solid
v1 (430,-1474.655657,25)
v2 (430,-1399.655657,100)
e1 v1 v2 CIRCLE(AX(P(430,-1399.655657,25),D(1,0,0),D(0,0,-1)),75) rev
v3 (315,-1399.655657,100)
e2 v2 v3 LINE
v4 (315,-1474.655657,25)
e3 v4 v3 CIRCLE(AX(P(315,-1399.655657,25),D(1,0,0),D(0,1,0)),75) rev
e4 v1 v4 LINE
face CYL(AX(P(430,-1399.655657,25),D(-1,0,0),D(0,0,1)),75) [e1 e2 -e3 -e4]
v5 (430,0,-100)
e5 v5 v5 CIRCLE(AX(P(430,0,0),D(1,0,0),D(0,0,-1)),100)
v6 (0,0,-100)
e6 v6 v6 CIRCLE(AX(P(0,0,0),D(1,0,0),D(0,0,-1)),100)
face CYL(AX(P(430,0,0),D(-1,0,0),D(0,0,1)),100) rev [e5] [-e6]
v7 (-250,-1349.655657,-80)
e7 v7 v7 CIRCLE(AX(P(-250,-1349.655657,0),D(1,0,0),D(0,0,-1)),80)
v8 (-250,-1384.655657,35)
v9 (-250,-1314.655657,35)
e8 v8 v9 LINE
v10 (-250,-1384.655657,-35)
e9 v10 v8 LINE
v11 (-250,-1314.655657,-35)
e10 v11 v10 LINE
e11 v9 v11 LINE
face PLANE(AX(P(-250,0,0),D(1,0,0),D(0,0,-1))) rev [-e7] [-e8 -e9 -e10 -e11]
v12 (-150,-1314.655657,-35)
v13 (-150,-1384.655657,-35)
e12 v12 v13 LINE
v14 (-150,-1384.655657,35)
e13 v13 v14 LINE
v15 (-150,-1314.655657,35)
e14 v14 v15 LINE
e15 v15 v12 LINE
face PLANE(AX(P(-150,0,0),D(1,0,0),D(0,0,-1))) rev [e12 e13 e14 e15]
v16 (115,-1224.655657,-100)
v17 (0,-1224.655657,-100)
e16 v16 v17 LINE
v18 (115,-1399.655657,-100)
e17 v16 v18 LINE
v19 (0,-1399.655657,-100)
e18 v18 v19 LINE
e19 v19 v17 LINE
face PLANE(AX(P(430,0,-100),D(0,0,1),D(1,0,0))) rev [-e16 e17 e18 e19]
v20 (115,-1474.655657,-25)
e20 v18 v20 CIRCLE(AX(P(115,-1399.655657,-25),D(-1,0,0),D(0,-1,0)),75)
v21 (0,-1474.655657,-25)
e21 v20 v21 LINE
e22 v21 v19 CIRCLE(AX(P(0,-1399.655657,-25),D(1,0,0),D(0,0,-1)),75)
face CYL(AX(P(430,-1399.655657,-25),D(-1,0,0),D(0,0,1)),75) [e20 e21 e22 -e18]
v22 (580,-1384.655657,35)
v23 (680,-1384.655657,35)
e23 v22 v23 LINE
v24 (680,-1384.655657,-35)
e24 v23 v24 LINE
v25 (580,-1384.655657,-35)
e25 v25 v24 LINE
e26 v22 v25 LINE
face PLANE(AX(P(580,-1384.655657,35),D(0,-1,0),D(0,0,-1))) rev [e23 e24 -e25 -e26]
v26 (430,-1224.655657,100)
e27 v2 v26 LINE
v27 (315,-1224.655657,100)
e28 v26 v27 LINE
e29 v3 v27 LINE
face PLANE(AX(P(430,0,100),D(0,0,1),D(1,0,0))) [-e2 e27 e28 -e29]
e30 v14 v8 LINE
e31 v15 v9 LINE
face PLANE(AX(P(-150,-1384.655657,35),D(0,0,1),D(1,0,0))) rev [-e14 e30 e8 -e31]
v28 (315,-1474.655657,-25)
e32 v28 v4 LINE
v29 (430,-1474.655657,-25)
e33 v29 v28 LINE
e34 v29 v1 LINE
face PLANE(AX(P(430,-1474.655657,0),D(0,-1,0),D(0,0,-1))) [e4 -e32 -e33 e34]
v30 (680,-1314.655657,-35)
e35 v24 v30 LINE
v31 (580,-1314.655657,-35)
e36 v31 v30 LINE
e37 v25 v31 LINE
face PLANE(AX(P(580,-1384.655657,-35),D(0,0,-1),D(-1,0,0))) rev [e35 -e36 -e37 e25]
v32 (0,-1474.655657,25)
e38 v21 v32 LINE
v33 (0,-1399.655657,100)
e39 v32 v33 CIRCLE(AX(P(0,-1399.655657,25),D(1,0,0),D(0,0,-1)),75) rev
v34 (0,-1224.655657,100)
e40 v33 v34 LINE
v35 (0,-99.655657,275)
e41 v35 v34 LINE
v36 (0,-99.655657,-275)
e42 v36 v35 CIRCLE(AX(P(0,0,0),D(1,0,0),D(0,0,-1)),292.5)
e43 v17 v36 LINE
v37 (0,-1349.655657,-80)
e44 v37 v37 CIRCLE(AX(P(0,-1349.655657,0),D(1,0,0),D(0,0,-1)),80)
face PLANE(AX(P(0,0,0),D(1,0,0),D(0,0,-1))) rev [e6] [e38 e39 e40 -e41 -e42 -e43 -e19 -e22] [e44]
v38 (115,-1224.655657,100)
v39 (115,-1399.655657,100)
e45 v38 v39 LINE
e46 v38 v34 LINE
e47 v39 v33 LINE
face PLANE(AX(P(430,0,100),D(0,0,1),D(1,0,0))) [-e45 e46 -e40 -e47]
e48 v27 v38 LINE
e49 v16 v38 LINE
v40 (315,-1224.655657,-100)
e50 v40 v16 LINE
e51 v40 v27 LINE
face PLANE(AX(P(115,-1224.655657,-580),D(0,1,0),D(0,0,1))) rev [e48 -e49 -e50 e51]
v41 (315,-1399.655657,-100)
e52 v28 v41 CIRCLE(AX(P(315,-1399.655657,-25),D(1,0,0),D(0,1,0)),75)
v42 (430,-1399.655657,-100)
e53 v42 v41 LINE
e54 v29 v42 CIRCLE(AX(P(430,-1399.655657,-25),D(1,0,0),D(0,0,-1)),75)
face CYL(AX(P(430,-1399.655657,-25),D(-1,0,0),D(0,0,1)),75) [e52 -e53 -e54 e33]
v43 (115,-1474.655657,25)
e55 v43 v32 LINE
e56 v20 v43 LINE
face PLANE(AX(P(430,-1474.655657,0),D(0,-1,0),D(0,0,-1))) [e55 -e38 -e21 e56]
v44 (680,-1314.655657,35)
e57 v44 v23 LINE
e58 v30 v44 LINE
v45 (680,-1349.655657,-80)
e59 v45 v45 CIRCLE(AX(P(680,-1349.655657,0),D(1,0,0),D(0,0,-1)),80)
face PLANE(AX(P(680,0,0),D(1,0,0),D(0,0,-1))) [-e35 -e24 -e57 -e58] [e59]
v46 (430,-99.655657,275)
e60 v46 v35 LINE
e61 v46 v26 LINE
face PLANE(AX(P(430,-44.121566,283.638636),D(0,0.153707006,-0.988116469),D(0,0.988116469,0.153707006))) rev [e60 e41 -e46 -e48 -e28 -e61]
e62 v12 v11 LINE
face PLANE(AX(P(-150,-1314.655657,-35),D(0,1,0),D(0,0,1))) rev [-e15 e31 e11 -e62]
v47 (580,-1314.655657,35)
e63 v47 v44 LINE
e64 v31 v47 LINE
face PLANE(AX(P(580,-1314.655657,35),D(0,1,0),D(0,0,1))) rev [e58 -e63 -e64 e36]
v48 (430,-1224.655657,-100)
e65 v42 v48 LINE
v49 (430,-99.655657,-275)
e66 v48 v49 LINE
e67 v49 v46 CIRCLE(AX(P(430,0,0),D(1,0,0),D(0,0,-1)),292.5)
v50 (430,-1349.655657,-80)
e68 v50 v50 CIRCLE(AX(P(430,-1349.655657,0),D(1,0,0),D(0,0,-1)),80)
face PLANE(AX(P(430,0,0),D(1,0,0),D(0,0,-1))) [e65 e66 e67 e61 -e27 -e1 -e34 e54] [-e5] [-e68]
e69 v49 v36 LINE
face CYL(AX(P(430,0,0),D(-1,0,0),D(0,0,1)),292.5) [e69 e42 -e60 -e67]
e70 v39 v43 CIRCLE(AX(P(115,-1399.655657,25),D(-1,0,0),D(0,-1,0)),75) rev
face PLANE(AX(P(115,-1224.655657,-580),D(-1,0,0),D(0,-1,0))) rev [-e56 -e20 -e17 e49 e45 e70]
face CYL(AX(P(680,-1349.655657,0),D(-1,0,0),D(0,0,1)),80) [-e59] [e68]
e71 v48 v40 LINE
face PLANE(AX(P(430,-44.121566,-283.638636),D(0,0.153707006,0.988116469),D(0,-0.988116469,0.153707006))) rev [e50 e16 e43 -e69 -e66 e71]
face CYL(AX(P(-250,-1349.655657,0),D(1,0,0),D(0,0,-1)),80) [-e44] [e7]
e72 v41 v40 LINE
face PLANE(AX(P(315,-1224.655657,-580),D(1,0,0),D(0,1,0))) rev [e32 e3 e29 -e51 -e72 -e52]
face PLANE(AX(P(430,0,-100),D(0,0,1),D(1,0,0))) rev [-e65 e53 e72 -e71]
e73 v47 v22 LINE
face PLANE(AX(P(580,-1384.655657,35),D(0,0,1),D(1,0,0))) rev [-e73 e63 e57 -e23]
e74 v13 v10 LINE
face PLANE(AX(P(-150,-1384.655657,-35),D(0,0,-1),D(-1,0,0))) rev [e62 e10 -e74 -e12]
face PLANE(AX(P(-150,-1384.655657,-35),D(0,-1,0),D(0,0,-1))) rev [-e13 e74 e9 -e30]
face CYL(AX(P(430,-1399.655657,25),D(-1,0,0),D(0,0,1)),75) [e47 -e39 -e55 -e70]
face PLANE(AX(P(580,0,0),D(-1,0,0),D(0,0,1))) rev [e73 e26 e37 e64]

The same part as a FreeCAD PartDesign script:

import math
import FreeCAD as App
import Part
import Sketcher
Q = App.Units.Quantity

doc = App.newDocument("Part")
body = doc.addObject("PartDesign::Body", "Body")

# Sketch on YZ plane
sketch1 = body.newObject("Sketcher::SketchObject", "Sketch")
sketch1.AttachmentSupport = (doc.getObject("YZ_Plane"), [""])
sketch1.MapMode = "FlatFace"
sketch1.addGeometry([
    Part.ArcOfCircle(Part.Circle(App.Vector(0, 0, 0), App.Vector(0, 0, 1), 292), math.radians(-90), math.radians(110)),  # 0
    Part.LineSegment(App.Vector(-100, 275, 0), App.Vector(-1225, 100, 0)),  # 1
    Part.LineSegment(App.Vector(-1225, 100, 0), App.Vector(-1400, 100, 0)),  # 2
    Part.ArcOfCircle(Part.Circle(App.Vector(-1400, 25, 0), App.Vector(0, 0, 1), 75), math.radians(90), math.radians(180)),  # 3
    Part.LineSegment(App.Vector(-1475, 25, 0), App.Vector(-1475, -25, 0)),  # 4
    Part.ArcOfCircle(Part.Circle(App.Vector(-1400, -25, 0), App.Vector(0, 0, 1), 75), math.radians(180), math.radians(270)),  # 5
    Part.LineSegment(App.Vector(-1400, -100, 0), App.Vector(-1225, -100, 0)),  # 6
    Part.LineSegment(App.Vector(-1225, -100, 0), App.Vector(-100, -275, 0)),  # 7
    Part.ArcOfCircle(Part.Circle(App.Vector(0, 0, 0), App.Vector(0, 0, 1), 293), math.radians(-109.92), math.radians(-90)),  # 8
    Part.ArcOfCircle(Part.Circle(App.Vector(0, 0, 0), App.Vector(0, 0, 1), 100), math.radians(175), math.radians(270)),  # 9
    Part.ArcOfCircle(Part.Circle(App.Vector(0, 0, 0), App.Vector(0, 0, 1), 100), math.radians(-90), math.radians(175)),  # 10
    Part.Circle(App.Vector(-1350, 0, 0), App.Vector(0, 0, 1), 80),  # 11
], False)
sketch1.addConstraint([
    Sketcher.Constraint("Coincident", 0, 2, 1, 1),
    Sketcher.Constraint("Coincident", 1, 2, 2, 1),
    Sketcher.Constraint("Tangent", 2, 2, 3, 1),
    Sketcher.Constraint("Tangent", 3, 2, 4, 1),
    Sketcher.Constraint("Tangent", 4, 2, 5, 1),
    Sketcher.Constraint("Tangent", 5, 2, 6, 1),
    Sketcher.Constraint("Coincident", 6, 2, 7, 1),
    Sketcher.Constraint("Coincident", 7, 2, 8, 1),
    Sketcher.Constraint("Tangent", 8, 2, 0, 1),
    Sketcher.Constraint("Tangent", 9, 1, 10, 2),
    Sketcher.Constraint("Coincident", 10, 1, 9, 2),
    Sketcher.Constraint("Horizontal", 2),
    Sketcher.Constraint("Vertical", 4),
    Sketcher.Constraint("Horizontal", 6),
    Sketcher.Constraint("Coincident", 0, 3, -1, 1),
    Sketcher.Constraint("Coincident", 9, 3, -1, 1),
    Sketcher.Constraint("Equal", 3, 5),
    Sketcher.Constraint("Equal", 0, 8),
    Sketcher.Constraint("Symmetric", 1, 2, 6, 2, -1),
    Sketcher.Constraint("PointOnObject", 11, 3, -1),
    Sketcher.Constraint("PointOnObject", 8, 2, -2),
    Sketcher.Constraint("PointOnObject", 10, 1, -2),
    Sketcher.Constraint("Horizontal", 6, 2, 10, 1),
    Sketcher.Constraint("Vertical", 0, 2, 7, 2),
    Sketcher.Constraint("Vertical", 7, 2, 9, 1),
    Sketcher.Constraint("Diameter", 11, Q("160 mm")),
    Sketcher.Constraint("Radius", 3, Q("75 mm")),
    Sketcher.Constraint("Radius", 9, Q("100 mm")),
    Sketcher.Constraint("Radius", 0, Q("292.5 mm")),
    Sketcher.Constraint("DistanceX", 2, 2, 2, 1, Q("175 mm")),
    Sketcher.Constraint("DistanceY", -1, 1, 0, 2, Q("275 mm")),
    Sketcher.Constraint("DistanceX", 3, 3, 11, 3, Q("50 mm")),
    Sketcher.Constraint("Distance", 1, Q("1138.529754 mm")),
])
pad1 = body.newObject("PartDesign::Pad", "Pad")
pad1.Profile = sketch1
pad1.Length = 430
body2 = doc.addObject("PartDesign::Body", "Body001")

# Sketch on YZ plane
sketch2 = body2.newObject("Sketcher::SketchObject", "Sketch001")
sketch2.AttachmentSupport = (doc.getObject("YZ_Plane001"), [""])
sketch2.MapMode = "FlatFace"
sketch2.addGeometry(Part.Circle(App.Vector(-1350, 0, 0), App.Vector(0, 0, 1), 80), False)
sketch2.addConstraint([
    Sketcher.Constraint("PointOnObject", 0, 3, -1),
    Sketcher.Constraint("Diameter", 0, Q("160 mm")),
    Sketcher.Constraint("DistanceX", 0, 3, -1, 1, Q("1349.655657 mm")),
])
pad2 = body2.newObject("PartDesign::Pad", "Pad001")
pad2.Profile = sketch2
pad2.Length = 250
pad2.Reversed = True
body.AllowCompound = True
doc.recompute()

boolean = body.newObject("PartDesign::Boolean", "Boolean")
boolean.Type = "Fuse"
boolean.addObjects([body2])

# Sketch on YZ plane
sketch3 = body.newObject("Sketcher::SketchObject", "Sketch002")
sketch3.AttachmentSupport = (doc.getObject("YZ_Plane"), [""])
sketch3.MapMode = "FlatFace"
sketch3.addGeometry(Part.Circle(App.Vector(-1350, 0, 0), App.Vector(0, 0, 1), 80), False)
sketch3.addConstraint([
    Sketcher.Constraint("PointOnObject", 0, 3, -1),
    Sketcher.Constraint("Diameter", 0, Q("160 mm")),
    Sketcher.Constraint("DistanceX", 0, 3, -1, 1, Q("1349.655657 mm")),
])
pad3 = body.newObject("PartDesign::Pad", "Pad002")
pad3.Profile = sketch3
pad3.Length = 680

# Sketch on XY plane
sketch4 = body.newObject("Sketcher::SketchObject", "Sketch003")
sketch4.AttachmentSupport = (doc.getObject("XY_Plane"), [""])
sketch4.MapMode = "FlatFace"
sketch4.AttachmentOffset = App.Placement(App.Vector(0, 0, 100), App.Rotation())
sketch4.addGeometry([
    Part.LineSegment(App.Vector(115, -1225, 0), App.Vector(115, -1475, 0)),
    Part.LineSegment(App.Vector(115, -1475, 0), App.Vector(315, -1475, 0)),
    Part.LineSegment(App.Vector(315, -1475, 0), App.Vector(315, -1225, 0)),
    Part.LineSegment(App.Vector(315, -1225, 0), App.Vector(115, -1225, 0)),
], False)
sketch4.addConstraint([
    Sketcher.Constraint("Coincident", 0, 2, 1, 1),
    Sketcher.Constraint("Coincident", 1, 2, 2, 1),
    Sketcher.Constraint("Coincident", 2, 2, 3, 1),
    Sketcher.Constraint("Coincident", 3, 2, 0, 1),
    Sketcher.Constraint("Vertical", 0),
    Sketcher.Constraint("Horizontal", 1),
    Sketcher.Constraint("Vertical", 2),
    Sketcher.Constraint("Horizontal", 3),
    Sketcher.Constraint("DistanceX", 1, 1, 1, 2, Q("200 mm")),
    Sketcher.Constraint("DistanceY", 0, 2, 0, 1, Q("250 mm")),
    Sketcher.Constraint("DistanceX", -1, 1, 0, 2, Q("115 mm")),
    Sketcher.Constraint("DistanceY", 0, 2, -1, 1, Q("1474.655657 mm")),
])
pocket1 = body.newObject("PartDesign::Pocket", "Pocket")
pocket1.Profile = sketch4
pocket1.Length = 680

# Sketch on YZ plane
sketch5 = body.newObject("Sketcher::SketchObject", "Sketch004")
sketch5.AttachmentSupport = (doc.getObject("YZ_Plane"), [""])
sketch5.MapMode = "FlatFace"
sketch5.AttachmentOffset = App.Placement(App.Vector(0, 0, -250), App.Rotation())
sketch5.addGeometry([
    Part.LineSegment(App.Vector(-1315, -35, 0), App.Vector(-1385, -35, 0)),
    Part.LineSegment(App.Vector(-1385, -35, 0), App.Vector(-1385, 35, 0)),
    Part.LineSegment(App.Vector(-1385, 35, 0), App.Vector(-1315, 35, 0)),
    Part.LineSegment(App.Vector(-1315, 35, 0), App.Vector(-1315, -35, 0)),
], False)
sketch5.addConstraint([
    Sketcher.Constraint("Coincident", 0, 2, 1, 1),
    Sketcher.Constraint("Coincident", 1, 2, 2, 1),
    Sketcher.Constraint("Coincident", 2, 2, 3, 1),
    Sketcher.Constraint("Coincident", 3, 2, 0, 1),
    Sketcher.Constraint("Horizontal", 0),
    Sketcher.Constraint("Vertical", 1),
    Sketcher.Constraint("Horizontal", 2),
    Sketcher.Constraint("Vertical", 3),
    Sketcher.Constraint("Equal", 2, 1),
    Sketcher.Constraint("DistanceX", 0, 2, 0, 1, Q("70 mm")),
    Sketcher.Constraint("DistanceY", 0, 2, -1, 1, Q("35 mm")),
    Sketcher.Constraint("DistanceX", 0, 2, -1, 1, Q("1384.655657 mm")),
])
pocket2 = body.newObject("PartDesign::Pocket", "Pocket001")
pocket2.Profile = sketch5
pocket2.Length = 100
pocket2.Reversed = True

# Sketch on YZ plane
sketch6 = body.newObject("Sketcher::SketchObject", "Sketch005")
sketch6.AttachmentSupport = (doc.getObject("YZ_Plane"), [""])
sketch6.MapMode = "FlatFace"
sketch6.AttachmentOffset = App.Placement(App.Vector(0, 0, 680), App.Rotation())
sketch6.addGeometry([
    Part.LineSegment(App.Vector(-1315, 35, 0), App.Vector(-1385, 35, 0)),
    Part.LineSegment(App.Vector(-1385, 35, 0), App.Vector(-1385, -35, 0)),
    Part.LineSegment(App.Vector(-1385, -35, 0), App.Vector(-1315, -35, 0)),
    Part.LineSegment(App.Vector(-1315, -35, 0), App.Vector(-1315, 35, 0)),
], False)
sketch6.addConstraint([
    Sketcher.Constraint("Coincident", 0, 2, 1, 1),
    Sketcher.Constraint("Coincident", 1, 2, 2, 1),
    Sketcher.Constraint("Coincident", 2, 2, 3, 1),
    Sketcher.Constraint("Coincident", 3, 2, 0, 1),
    Sketcher.Constraint("Horizontal", 0),
    Sketcher.Constraint("Vertical", 1),
    Sketcher.Constraint("Horizontal", 2),
    Sketcher.Constraint("Vertical", 3),
    Sketcher.Constraint("Equal", 2, 1),
    Sketcher.Constraint("DistanceX", 0, 2, 0, 1, Q("70 mm")),
    Sketcher.Constraint("DistanceY", -1, 1, 0, 2, Q("35 mm")),
    Sketcher.Constraint("DistanceX", 0, 2, -1, 1, Q("1384.655657 mm")),
])
pocket3 = body.newObject("PartDesign::Pocket", "Pocket002")
pocket3.Profile = sketch6
pocket3.Length = 100

doc.recompute()
